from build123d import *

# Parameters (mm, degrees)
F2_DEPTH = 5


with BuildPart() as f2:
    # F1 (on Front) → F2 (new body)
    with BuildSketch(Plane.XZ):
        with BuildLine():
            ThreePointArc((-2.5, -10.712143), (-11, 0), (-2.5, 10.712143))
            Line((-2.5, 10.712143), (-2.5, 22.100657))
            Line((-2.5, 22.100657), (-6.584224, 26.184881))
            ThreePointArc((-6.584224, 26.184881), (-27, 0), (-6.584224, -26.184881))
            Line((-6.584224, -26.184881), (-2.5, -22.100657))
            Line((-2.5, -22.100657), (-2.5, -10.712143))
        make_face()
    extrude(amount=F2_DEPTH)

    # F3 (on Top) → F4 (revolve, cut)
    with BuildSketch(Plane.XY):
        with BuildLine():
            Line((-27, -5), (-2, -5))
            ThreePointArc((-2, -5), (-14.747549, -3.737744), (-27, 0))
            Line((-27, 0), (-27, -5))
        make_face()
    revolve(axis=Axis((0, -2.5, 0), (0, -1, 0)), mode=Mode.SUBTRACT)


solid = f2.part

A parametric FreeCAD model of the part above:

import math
import FreeCAD as App
import Part
import Sketcher

V = App.Vector

doc = App.newDocument("Part")
body = doc.addObject("PartDesign::Body", "Body")

# Sketch on XZ plane
sketch1 = doc.addObject("Sketcher::SketchObject", "Sketch")
body.addObject(sketch1)
sketch1.AttachmentSupport = (doc.XZ_Plane, [""])
sketch1.MapMode = "FlatFace"
sketch1.addGeometry(Part.ArcOfCircle(Part.Circle(V(0, 0, 0), V(0, 0, 1), 11), math.radians(103.136561), math.radians(256.863439)), False)
sketch1.addGeometry(Part.LineSegment(V(-2.5, 10.712143, 0), V(-2.5, 22.100657, 0)), False)
sketch1.addGeometry(Part.LineSegment(V(-2.5, 22.100657, 0), V(-6.584224, 26.184881, 0)), False)
sketch1.addGeometry(Part.ArcOfCircle(Part.Circle(V(0, 0, 0), V(0, 0, 1), 27), math.radians(104.114482), math.radians(255.885518)), False)
sketch1.addGeometry(Part.LineSegment(V(-6.584224, -26.184881, 0), V(-2.5, -22.100657, 0)), False)
sketch1.addGeometry(Part.LineSegment(V(-2.5, -22.100657, 0), V(-2.5, -10.712143, 0)), False)
sketch1.addConstraint(Sketcher.Constraint("Coincident", 0, 1, 1, 1))
sketch1.addConstraint(Sketcher.Constraint("Coincident", 1, 2, 2, 1))
sketch1.addConstraint(Sketcher.Constraint("Coincident", 2, 2, 3, 1))
sketch1.addConstraint(Sketcher.Constraint("Coincident", 3, 2, 4, 1))
sketch1.addConstraint(Sketcher.Constraint("Coincident", 4, 2, 5, 1))
sketch1.addConstraint(Sketcher.Constraint("Coincident", 5, 2, 0, 2))
sketch1.addConstraint(Sketcher.Constraint("Vertical", 1))
sketch1.addConstraint(Sketcher.Constraint("Vertical", 5))
sketch1.addConstraint(Sketcher.Constraint("Coincident", 0, 3, -1, 1))
sketch1.addConstraint(Sketcher.Constraint("Coincident", 3, 3, -1, 1))
sketch1.addConstraint(Sketcher.Constraint("Symmetric", 1, 2, 4, 2, -1))
sketch1.addConstraint(Sketcher.Constraint("Perpendicular", 2, 4))
sketch1.addConstraint(Sketcher.Constraint("Vertical", 2, 2, 3, 2))
sketch1.addConstraint(Sketcher.Constraint("Radius", 0, 11.0))
sketch1.addConstraint(Sketcher.Constraint("Radius", 3, 27.0))
sketch1.addConstraint(Sketcher.Constraint("DistanceX", 0, 1, -1, 1, 2.5))
sketch1.addConstraint(Sketcher.Constraint("DistanceY", 4, 2, 0, 1, 32.8128))
pad1 = doc.addObject("PartDesign::Pad", "Pad")
body.addObject(pad1)
pad1.Profile = sketch1
pad1.Length = 5

# Sketch on XY plane
sketch2 = doc.addObject("Sketcher::SketchObject", "Sketch001")
body.addObject(sketch2)
sketch2.AttachmentSupport = (doc.XY_Plane, [""])
sketch2.MapMode = "FlatFace"
sketch2.addGeometry(Part.LineSegment(V(-27, -5, 0), V(-2, -5, 0)), False)
sketch2.addGeometry(Part.ArcOfCircle(Part.Circle(V(-2.000001, 59.999994, 0), V(0, 0, 1), 64.999994), math.radians(-112.619866), math.radians(-89.999999)), False)
sketch2.addGeometry(Part.LineSegment(V(-27, 0, 0), V(-27, -5, 0)), False)
sketch2.addConstraint(Sketcher.Constraint("Tangent", 0, 2, 1, 2))
sketch2.addConstraint(Sketcher.Constraint("Coincident", 1, 1, 2, 1))
sketch2.addConstraint(Sketcher.Constraint("Coincident", 2, 2, 0, 1))
sketch2.addConstraint(Sketcher.Constraint("Horizontal", 0))
sketch2.addConstraint(Sketcher.Constraint("Vertical", 2))
sketch2.addConstraint(Sketcher.Constraint("PointOnObject", 1, 1, -1))
sketch2.addConstraint(Sketcher.Constraint("DistanceX", 0, 1, 0, 2, 25.0))
sketch2.addConstraint(Sketcher.Constraint("DistanceY", 2, 2, 2, 1, 5.0))
sketch2.addConstraint(Sketcher.Constraint("DistanceX", 1, 3, -1, 1, 2.000001))
groove = doc.addObject("PartDesign::Groove", "Groove")
body.addObject(groove)
groove.Profile = sketch2
groove.ReferenceAxis = (sketch2, ["V_Axis"])
groove.Angle = 360

doc.recompute()
